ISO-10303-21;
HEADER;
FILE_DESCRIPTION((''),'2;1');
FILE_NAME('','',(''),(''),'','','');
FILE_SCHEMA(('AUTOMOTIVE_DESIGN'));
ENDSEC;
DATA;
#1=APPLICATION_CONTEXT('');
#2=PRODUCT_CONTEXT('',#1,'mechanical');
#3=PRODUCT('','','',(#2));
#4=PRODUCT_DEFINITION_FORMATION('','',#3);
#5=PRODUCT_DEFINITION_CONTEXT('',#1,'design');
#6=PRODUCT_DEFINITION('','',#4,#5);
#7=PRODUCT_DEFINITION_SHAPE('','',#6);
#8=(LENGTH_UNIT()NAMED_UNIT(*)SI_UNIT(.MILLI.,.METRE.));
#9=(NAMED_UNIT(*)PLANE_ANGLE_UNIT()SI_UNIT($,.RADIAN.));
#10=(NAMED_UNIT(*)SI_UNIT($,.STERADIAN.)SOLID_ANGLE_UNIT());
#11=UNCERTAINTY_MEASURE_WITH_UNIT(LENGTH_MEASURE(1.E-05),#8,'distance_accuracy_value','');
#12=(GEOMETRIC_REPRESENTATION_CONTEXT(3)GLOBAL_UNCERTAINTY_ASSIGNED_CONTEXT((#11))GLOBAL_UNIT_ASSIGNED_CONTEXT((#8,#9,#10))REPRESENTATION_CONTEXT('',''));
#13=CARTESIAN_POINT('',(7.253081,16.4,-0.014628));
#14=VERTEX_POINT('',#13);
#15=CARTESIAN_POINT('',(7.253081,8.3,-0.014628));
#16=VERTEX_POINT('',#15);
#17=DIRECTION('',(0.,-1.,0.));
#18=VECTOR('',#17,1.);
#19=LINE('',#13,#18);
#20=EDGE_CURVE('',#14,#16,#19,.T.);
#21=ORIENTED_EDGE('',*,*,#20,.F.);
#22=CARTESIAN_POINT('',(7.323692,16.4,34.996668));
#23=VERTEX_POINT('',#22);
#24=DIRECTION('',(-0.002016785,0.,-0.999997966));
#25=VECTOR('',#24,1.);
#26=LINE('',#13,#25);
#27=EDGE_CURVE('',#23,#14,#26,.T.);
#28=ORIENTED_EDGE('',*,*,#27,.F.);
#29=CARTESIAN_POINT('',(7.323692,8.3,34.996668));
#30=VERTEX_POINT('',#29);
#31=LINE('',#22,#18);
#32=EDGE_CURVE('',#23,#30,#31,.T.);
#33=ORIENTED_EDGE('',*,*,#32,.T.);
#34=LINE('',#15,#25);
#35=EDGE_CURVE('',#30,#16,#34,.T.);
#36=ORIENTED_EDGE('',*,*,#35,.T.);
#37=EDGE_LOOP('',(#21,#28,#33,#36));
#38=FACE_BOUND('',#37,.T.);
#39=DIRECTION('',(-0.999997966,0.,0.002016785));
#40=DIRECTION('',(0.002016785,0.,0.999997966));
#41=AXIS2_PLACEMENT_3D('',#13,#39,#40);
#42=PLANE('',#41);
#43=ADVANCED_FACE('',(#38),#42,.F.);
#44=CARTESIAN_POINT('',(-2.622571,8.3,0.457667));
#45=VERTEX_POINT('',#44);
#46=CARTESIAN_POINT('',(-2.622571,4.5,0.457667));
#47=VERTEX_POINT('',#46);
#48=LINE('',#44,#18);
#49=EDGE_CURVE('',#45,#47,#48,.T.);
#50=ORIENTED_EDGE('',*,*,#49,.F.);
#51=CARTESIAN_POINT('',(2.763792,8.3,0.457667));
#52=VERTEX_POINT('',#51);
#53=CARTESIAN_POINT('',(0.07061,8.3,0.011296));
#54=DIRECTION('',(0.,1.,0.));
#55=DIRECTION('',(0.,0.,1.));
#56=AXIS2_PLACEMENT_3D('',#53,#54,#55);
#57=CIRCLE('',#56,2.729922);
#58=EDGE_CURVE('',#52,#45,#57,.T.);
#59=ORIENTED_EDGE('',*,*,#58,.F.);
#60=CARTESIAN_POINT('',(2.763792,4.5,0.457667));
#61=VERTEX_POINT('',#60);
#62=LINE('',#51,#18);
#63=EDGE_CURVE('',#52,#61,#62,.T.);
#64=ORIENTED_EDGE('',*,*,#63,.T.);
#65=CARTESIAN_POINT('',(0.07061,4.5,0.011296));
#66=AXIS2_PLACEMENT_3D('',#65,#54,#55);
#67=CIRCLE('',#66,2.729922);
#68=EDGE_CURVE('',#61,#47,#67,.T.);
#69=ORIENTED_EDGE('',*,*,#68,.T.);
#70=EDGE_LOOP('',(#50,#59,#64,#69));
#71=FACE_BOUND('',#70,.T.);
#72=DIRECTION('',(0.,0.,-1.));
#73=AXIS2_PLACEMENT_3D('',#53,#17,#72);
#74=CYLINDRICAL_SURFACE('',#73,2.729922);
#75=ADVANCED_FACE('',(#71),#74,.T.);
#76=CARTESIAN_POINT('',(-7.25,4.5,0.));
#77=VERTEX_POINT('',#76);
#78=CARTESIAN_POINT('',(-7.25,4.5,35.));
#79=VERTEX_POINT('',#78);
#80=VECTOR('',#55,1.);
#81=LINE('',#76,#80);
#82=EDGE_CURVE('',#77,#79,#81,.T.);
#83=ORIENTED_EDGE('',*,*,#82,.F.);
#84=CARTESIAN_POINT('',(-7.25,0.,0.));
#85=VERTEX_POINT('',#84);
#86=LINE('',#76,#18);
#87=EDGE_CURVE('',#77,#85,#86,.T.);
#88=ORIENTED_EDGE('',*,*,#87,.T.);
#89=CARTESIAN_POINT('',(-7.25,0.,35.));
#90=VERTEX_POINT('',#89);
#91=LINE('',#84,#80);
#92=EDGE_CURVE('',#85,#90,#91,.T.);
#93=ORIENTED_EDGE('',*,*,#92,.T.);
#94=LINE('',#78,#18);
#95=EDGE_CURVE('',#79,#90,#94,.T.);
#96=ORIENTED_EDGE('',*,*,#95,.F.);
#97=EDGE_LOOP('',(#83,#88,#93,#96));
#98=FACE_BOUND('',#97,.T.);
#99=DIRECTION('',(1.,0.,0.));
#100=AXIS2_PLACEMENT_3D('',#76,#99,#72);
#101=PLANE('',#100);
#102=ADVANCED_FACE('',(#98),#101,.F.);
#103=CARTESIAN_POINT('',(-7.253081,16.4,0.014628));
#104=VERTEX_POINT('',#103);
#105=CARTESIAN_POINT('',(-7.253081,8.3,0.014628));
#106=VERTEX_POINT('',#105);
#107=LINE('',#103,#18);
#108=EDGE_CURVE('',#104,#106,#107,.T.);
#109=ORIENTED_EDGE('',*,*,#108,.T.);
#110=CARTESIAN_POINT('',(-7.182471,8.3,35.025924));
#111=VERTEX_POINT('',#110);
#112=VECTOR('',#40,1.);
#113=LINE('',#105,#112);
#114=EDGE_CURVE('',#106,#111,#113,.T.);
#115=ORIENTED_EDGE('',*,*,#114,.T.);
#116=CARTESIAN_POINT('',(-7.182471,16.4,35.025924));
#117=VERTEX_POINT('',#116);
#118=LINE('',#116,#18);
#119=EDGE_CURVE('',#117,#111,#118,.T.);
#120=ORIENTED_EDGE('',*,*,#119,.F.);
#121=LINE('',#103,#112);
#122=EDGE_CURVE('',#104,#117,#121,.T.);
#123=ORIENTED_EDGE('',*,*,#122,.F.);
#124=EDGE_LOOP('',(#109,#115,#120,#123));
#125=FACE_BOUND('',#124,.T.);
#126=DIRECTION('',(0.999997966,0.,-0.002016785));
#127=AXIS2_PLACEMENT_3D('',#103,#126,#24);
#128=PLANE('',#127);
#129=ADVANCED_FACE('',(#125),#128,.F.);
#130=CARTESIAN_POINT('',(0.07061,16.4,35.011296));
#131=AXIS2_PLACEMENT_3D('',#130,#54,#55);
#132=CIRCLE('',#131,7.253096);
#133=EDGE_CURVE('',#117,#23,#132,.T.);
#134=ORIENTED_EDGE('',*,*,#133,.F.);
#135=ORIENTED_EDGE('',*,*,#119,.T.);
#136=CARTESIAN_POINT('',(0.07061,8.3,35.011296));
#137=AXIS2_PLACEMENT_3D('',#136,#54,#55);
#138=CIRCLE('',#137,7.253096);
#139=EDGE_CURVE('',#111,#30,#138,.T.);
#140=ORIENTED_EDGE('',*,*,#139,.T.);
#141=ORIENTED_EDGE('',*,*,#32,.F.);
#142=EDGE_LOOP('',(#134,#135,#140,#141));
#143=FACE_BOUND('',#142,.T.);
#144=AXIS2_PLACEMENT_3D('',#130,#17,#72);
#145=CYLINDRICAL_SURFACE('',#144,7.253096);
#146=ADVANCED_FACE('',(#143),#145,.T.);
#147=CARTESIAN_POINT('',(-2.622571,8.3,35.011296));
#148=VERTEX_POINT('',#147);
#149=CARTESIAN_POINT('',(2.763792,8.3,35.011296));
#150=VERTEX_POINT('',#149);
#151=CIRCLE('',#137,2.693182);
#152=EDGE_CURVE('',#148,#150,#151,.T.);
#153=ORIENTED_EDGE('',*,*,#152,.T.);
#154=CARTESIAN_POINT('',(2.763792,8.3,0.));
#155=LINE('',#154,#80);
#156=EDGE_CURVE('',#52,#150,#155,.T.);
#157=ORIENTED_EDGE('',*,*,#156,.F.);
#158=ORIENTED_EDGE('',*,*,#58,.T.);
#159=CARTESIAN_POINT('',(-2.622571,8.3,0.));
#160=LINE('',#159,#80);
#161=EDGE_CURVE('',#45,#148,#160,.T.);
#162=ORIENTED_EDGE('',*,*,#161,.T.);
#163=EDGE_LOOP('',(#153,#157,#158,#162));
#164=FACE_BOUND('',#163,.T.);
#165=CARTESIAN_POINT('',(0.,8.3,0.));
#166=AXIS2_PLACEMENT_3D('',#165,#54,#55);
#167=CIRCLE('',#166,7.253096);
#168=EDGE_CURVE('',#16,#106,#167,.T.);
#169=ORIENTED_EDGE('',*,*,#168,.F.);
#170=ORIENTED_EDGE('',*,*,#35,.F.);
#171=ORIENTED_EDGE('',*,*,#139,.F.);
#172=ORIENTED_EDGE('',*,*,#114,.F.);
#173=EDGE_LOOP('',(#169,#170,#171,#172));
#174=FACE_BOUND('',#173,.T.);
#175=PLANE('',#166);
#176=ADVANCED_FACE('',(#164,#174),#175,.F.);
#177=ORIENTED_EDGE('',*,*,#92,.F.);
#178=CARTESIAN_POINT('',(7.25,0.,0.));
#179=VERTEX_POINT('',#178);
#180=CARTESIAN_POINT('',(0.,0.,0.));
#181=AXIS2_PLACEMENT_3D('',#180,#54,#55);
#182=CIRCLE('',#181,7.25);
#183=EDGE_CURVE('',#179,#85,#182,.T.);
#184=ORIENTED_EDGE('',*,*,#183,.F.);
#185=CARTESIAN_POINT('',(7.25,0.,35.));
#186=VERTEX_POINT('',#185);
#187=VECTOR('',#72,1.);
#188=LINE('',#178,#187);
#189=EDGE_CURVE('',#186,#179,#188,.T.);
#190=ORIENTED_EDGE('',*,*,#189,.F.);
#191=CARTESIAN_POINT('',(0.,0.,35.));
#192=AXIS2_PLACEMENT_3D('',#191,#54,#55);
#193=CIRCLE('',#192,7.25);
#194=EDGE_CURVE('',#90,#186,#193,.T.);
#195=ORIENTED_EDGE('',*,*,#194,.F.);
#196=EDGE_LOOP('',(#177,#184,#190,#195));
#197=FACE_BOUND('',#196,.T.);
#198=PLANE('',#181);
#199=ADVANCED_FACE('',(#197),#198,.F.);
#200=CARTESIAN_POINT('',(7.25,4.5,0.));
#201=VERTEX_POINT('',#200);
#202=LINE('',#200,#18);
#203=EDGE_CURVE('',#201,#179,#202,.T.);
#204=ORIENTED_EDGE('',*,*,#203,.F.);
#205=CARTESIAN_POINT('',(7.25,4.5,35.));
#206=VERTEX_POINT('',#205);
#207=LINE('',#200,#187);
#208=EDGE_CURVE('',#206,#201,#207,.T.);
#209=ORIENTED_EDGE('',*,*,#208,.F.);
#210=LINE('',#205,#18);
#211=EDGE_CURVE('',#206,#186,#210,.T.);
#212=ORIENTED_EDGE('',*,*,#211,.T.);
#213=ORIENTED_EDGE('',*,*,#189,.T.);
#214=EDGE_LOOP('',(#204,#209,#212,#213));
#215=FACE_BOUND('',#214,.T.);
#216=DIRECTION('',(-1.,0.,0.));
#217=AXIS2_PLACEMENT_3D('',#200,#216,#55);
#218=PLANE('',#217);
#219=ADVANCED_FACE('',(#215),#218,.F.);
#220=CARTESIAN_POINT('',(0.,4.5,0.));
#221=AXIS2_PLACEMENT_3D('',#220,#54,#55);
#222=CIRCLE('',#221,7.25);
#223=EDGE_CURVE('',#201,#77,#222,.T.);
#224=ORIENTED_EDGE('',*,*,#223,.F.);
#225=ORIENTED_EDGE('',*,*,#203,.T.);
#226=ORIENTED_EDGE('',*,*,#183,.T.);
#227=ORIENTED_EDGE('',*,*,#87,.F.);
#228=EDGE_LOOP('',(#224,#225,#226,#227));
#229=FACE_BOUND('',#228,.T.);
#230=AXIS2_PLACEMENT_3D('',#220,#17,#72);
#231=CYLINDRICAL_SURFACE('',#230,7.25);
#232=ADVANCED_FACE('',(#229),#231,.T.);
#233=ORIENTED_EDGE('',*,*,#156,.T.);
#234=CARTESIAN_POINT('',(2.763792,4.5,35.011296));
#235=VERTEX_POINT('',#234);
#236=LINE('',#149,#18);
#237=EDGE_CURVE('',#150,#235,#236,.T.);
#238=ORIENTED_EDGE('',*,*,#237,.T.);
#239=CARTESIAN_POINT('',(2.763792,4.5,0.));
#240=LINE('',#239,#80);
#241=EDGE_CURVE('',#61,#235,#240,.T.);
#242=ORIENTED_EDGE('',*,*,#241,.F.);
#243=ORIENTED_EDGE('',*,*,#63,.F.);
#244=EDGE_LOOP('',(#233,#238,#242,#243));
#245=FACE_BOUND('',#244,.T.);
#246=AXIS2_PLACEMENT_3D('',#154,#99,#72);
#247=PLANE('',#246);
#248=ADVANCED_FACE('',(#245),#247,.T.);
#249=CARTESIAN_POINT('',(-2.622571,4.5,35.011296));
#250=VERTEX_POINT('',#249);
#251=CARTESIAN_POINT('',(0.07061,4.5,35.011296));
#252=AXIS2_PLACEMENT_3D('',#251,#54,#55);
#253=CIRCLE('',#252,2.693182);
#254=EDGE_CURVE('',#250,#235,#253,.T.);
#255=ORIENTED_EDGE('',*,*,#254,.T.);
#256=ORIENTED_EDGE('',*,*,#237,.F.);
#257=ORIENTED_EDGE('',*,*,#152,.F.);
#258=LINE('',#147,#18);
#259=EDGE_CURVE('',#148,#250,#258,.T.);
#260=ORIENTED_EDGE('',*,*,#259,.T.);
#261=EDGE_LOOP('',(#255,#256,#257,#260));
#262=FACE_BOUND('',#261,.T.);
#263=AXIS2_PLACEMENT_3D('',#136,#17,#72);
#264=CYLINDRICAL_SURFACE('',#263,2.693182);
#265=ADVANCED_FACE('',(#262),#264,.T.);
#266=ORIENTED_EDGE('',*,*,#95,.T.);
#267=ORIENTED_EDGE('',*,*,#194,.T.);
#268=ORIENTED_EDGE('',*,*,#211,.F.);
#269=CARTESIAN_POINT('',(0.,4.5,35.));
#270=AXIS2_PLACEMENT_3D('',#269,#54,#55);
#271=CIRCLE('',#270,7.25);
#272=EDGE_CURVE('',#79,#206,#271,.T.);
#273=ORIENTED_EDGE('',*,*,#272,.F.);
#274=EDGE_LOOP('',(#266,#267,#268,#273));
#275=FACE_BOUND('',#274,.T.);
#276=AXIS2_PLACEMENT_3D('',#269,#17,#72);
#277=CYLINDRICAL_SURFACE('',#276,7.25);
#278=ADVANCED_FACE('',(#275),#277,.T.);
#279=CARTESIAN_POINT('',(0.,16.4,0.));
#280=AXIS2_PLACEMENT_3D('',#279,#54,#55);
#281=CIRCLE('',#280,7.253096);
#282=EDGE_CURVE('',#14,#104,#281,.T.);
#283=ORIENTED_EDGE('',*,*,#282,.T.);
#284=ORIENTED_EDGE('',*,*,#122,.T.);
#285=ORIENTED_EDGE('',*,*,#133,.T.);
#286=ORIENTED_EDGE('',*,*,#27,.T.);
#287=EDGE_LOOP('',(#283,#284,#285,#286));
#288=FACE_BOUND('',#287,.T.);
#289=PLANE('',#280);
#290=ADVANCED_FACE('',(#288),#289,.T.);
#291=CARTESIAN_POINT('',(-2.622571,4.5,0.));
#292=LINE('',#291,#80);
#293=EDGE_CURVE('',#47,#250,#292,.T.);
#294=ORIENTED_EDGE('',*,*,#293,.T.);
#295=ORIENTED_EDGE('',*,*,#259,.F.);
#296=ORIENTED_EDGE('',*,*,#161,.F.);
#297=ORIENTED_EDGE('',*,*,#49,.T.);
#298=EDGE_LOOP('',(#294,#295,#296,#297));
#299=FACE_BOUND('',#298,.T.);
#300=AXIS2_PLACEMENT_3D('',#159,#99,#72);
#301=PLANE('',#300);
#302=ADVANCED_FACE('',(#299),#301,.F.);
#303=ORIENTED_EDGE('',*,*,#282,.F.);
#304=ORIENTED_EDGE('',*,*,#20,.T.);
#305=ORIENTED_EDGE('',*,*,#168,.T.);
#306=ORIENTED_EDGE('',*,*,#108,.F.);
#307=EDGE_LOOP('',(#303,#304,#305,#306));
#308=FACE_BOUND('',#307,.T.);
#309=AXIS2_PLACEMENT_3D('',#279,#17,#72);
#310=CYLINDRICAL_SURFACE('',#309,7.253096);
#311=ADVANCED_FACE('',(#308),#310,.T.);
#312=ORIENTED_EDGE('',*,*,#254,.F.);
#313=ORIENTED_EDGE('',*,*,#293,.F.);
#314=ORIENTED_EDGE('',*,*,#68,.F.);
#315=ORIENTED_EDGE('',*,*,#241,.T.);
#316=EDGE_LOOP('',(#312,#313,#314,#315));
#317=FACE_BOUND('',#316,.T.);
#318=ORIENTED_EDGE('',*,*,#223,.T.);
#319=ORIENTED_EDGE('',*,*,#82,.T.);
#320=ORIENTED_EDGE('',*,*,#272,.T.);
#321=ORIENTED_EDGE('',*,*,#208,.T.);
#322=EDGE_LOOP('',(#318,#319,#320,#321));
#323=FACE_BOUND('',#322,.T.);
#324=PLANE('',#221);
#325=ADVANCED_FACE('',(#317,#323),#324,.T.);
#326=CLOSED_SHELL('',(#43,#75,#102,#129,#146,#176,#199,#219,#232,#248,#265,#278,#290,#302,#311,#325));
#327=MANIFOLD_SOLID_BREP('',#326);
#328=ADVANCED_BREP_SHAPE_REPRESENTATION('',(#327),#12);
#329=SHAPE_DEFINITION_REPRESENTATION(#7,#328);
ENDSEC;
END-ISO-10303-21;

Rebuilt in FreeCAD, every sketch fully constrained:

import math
import FreeCAD as App
import Part
import Sketcher
Q = App.Units.Quantity

doc = App.newDocument("Part")
params = doc.addObject("Spreadsheet::Sheet", "Params")
for row, (alias, value) in enumerate([
    ("sketch1_height", "35 mm"),
    ("sketch1_radius", "7.25 mm"),
    ("pad1_length", "4.5 mm"),
    ("pad2_length", "3.8 mm"),
    ("pad3_length", "8.1 mm"),
], start=1):
    params.set(f"A{row}", alias)
    params.set(f"B{row}", "=" + value)
    params.setAlias(f"B{row}", alias)

body = doc.addObject("PartDesign::Body", "Body")

# Sketch on XZ plane
sketch1 = doc.addObject("Sketcher::SketchObject", "Sketch")
body.addObject(sketch1)
sketch1.AttachmentSupport = (doc.XZ_Plane, [""])
sketch1.MapMode = "FlatFace"
sketch1.addGeometry(Part.LineSegment(App.Vector(7, 35, 0), App.Vector(7, 0, 0)), False)
sketch1.addGeometry(Part.ArcOfCircle(Part.Circle(App.Vector(0, 0, 0), App.Vector(0, 0, 1), 7), math.radians(180), math.radians(360)), False)
sketch1.addGeometry(Part.LineSegment(App.Vector(-7, 0, 0), App.Vector(-7, 35, 0)), False)
sketch1.addGeometry(Part.ArcOfCircle(Part.Circle(App.Vector(0, 35, 0), App.Vector(0, 0, 1), 7), math.radians(0), math.radians(180)), False)
sketch1.addConstraint(Sketcher.Constraint("Tangent", 0, 2, 1, 2))
sketch1.addConstraint(Sketcher.Constraint("Tangent", 1, 1, 2, 1))
sketch1.addConstraint(Sketcher.Constraint("Tangent", 2, 2, 3, 2))
sketch1.addConstraint(Sketcher.Constraint("Tangent", 3, 1, 0, 1))
sketch1.addConstraint(Sketcher.Constraint("Vertical", 0))
sketch1.addConstraint(Sketcher.Constraint("Vertical", 2))
sketch1.addConstraint(Sketcher.Constraint("Coincident", 1, 3, -1, 1))
sketch1.addConstraint(Sketcher.Constraint("DistanceY", 0, 2, 0, 1, Q("35 mm")))
sketch1.addConstraint(Sketcher.Constraint("Radius", 1, Q("7.25 mm")))
sketch1.setExpression("Constraints[7]", "Params.sketch1_height")
sketch1.setExpression("Constraints[8]", "Params.sketch1_radius")
pad1 = doc.addObject("PartDesign::Pad", "Pad")
body.addObject(pad1)
pad1.Profile = sketch1
pad1.setExpression("Length", "Params.pad1_length")
pad1.Reversed = True

# Sketch on XZ plane
sketch2 = doc.addObject("Sketcher::SketchObject", "Sketch001")
body.addObject(sketch2)
sketch2.AttachmentSupport = (doc.XZ_Plane, [""])
sketch2.MapMode = "FlatFace"
sketch2.AttachmentOffset = App.Placement(App.Vector(0, 0, -4.5), App.Rotation())
sketch2.addGeometry(Part.ArcOfCircle(Part.Circle(App.Vector(0.07, 35.01, 0), App.Vector(0, 0, 1), 2.69), math.radians(0), math.radians(180)), False)
sketch2.addGeometry(Part.LineSegment(App.Vector(2.76, 35.01, 0), App.Vector(2.76, 0.46, 0)), False)
sketch2.addGeometry(Part.ArcOfCircle(Part.Circle(App.Vector(0.07, 0.01, 0), App.Vector(0, 0, 1), 2.73), math.radians(0), math.radians(9.41)), False)
sketch2.addGeometry(Part.ArcOfCircle(Part.Circle(App.Vector(0.07, 0.01, 0), App.Vector(0, 0, 1), 2.73), math.radians(171), math.radians(360)), False)
sketch2.addGeometry(Part.LineSegment(App.Vector(-2.62, 0.46, 0), App.Vector(-2.62, 35.01, 0)), False)
sketch2.addConstraint(Sketcher.Constraint("Tangent", 0, 1, 1, 1))
sketch2.addConstraint(Sketcher.Constraint("Coincident", 1, 2, 2, 2))
sketch2.addConstraint(Sketcher.Constraint("Tangent", 2, 1, 3, 2))
sketch2.addConstraint(Sketcher.Constraint("Coincident", 3, 1, 4, 1))
sketch2.addConstraint(Sketcher.Constraint("Tangent", 4, 2, 0, 2))
sketch2.addConstraint(Sketcher.Constraint("Vertical", 1))
sketch2.addConstraint(Sketcher.Constraint("Vertical", 4))
sketch2.addConstraint(Sketcher.Constraint("Equal", 2, 3))
sketch2.addConstraint(Sketcher.Constraint("Horizontal", 3, 3, 2, 1))
sketch2.addConstraint(Sketcher.Constraint("Horizontal", 1, 2, 3, 1))
sketch2.addConstraint(Sketcher.Constraint("DistanceY", 2, 3, 0, 3, Q("35 mm")))
sketch2.addConstraint(Sketcher.Constraint("Radius", 0, Q("2.693182 mm")))
sketch2.addConstraint(Sketcher.Constraint("Radius", 2, Q("2.729922 mm")))
sketch2.addConstraint(Sketcher.Constraint("DistanceX", -1, 1, 0, 3, Q("0.07061 mm")))
sketch2.addConstraint(Sketcher.Constraint("DistanceY", -1, 1, 0, 3, Q("35.011296 mm")))
pad2 = doc.addObject("PartDesign::Pad", "Pad001")
body.addObject(pad2)
pad2.Profile = sketch2
pad2.setExpression("Length", "Params.pad2_length")
pad2.Reversed = True

# Sketch on XZ plane
sketch3 = doc.addObject("Sketcher::SketchObject", "Sketch002")
body.addObject(sketch3)
sketch3.AttachmentSupport = (doc.XZ_Plane, [""])
sketch3.MapMode = "FlatFace"
sketch3.AttachmentOffset = App.Placement(App.Vector(0, 0, -8.3), App.Rotation())
sketch3.addGeometry(Part.LineSegment(App.Vector(7, 35, 0), App.Vector(7, 0, 0)), False)
sketch3.addGeometry(Part.ArcOfCircle(Part.Circle(App.Vector(0, 0, 0), App.Vector(0, 0, 1), 7), math.radians(180), math.radians(360)), False)
sketch3.addGeometry(Part.LineSegment(App.Vector(-7, 0, 0), App.Vector(-7, 35, 0)), False)
sketch3.addGeometry(Part.ArcOfCircle(Part.Circle(App.Vector(0, 35, 0), App.Vector(0, 0, 1), 7), math.radians(0), math.radians(180)), False)
sketch3.addConstraint(Sketcher.Constraint("Tangent", 0, 2, 1, 2))
sketch3.addConstraint(Sketcher.Constraint("Tangent", 1, 1, 2, 1))
sketch3.addConstraint(Sketcher.Constraint("Tangent", 2, 2, 3, 2))
sketch3.addConstraint(Sketcher.Constraint("Tangent", 3, 1, 0, 1))
sketch3.addConstraint(Sketcher.Constraint("Coincident", 1, 3, -1, 1))
sketch3.addConstraint(Sketcher.Constraint("Equal", 1, 3))
sketch3.addConstraint(Sketcher.Constraint("Radius", 1, Q("7.253096 mm")))
sketch3.addConstraint(Sketcher.Constraint("DistanceX", -1, 1, 3, 3, Q("0.07061 mm")))
sketch3.addConstraint(Sketcher.Constraint("DistanceY", -1, 1, 3, 1, Q("34.996668 mm")))
pad3 = doc.addObject("PartDesign::Pad", "Pad002")
body.addObject(pad3)
pad3.Profile = sketch3
pad3.setExpression("Length", "Params.pad3_length")
pad3.Reversed = True

doc.recompute()
